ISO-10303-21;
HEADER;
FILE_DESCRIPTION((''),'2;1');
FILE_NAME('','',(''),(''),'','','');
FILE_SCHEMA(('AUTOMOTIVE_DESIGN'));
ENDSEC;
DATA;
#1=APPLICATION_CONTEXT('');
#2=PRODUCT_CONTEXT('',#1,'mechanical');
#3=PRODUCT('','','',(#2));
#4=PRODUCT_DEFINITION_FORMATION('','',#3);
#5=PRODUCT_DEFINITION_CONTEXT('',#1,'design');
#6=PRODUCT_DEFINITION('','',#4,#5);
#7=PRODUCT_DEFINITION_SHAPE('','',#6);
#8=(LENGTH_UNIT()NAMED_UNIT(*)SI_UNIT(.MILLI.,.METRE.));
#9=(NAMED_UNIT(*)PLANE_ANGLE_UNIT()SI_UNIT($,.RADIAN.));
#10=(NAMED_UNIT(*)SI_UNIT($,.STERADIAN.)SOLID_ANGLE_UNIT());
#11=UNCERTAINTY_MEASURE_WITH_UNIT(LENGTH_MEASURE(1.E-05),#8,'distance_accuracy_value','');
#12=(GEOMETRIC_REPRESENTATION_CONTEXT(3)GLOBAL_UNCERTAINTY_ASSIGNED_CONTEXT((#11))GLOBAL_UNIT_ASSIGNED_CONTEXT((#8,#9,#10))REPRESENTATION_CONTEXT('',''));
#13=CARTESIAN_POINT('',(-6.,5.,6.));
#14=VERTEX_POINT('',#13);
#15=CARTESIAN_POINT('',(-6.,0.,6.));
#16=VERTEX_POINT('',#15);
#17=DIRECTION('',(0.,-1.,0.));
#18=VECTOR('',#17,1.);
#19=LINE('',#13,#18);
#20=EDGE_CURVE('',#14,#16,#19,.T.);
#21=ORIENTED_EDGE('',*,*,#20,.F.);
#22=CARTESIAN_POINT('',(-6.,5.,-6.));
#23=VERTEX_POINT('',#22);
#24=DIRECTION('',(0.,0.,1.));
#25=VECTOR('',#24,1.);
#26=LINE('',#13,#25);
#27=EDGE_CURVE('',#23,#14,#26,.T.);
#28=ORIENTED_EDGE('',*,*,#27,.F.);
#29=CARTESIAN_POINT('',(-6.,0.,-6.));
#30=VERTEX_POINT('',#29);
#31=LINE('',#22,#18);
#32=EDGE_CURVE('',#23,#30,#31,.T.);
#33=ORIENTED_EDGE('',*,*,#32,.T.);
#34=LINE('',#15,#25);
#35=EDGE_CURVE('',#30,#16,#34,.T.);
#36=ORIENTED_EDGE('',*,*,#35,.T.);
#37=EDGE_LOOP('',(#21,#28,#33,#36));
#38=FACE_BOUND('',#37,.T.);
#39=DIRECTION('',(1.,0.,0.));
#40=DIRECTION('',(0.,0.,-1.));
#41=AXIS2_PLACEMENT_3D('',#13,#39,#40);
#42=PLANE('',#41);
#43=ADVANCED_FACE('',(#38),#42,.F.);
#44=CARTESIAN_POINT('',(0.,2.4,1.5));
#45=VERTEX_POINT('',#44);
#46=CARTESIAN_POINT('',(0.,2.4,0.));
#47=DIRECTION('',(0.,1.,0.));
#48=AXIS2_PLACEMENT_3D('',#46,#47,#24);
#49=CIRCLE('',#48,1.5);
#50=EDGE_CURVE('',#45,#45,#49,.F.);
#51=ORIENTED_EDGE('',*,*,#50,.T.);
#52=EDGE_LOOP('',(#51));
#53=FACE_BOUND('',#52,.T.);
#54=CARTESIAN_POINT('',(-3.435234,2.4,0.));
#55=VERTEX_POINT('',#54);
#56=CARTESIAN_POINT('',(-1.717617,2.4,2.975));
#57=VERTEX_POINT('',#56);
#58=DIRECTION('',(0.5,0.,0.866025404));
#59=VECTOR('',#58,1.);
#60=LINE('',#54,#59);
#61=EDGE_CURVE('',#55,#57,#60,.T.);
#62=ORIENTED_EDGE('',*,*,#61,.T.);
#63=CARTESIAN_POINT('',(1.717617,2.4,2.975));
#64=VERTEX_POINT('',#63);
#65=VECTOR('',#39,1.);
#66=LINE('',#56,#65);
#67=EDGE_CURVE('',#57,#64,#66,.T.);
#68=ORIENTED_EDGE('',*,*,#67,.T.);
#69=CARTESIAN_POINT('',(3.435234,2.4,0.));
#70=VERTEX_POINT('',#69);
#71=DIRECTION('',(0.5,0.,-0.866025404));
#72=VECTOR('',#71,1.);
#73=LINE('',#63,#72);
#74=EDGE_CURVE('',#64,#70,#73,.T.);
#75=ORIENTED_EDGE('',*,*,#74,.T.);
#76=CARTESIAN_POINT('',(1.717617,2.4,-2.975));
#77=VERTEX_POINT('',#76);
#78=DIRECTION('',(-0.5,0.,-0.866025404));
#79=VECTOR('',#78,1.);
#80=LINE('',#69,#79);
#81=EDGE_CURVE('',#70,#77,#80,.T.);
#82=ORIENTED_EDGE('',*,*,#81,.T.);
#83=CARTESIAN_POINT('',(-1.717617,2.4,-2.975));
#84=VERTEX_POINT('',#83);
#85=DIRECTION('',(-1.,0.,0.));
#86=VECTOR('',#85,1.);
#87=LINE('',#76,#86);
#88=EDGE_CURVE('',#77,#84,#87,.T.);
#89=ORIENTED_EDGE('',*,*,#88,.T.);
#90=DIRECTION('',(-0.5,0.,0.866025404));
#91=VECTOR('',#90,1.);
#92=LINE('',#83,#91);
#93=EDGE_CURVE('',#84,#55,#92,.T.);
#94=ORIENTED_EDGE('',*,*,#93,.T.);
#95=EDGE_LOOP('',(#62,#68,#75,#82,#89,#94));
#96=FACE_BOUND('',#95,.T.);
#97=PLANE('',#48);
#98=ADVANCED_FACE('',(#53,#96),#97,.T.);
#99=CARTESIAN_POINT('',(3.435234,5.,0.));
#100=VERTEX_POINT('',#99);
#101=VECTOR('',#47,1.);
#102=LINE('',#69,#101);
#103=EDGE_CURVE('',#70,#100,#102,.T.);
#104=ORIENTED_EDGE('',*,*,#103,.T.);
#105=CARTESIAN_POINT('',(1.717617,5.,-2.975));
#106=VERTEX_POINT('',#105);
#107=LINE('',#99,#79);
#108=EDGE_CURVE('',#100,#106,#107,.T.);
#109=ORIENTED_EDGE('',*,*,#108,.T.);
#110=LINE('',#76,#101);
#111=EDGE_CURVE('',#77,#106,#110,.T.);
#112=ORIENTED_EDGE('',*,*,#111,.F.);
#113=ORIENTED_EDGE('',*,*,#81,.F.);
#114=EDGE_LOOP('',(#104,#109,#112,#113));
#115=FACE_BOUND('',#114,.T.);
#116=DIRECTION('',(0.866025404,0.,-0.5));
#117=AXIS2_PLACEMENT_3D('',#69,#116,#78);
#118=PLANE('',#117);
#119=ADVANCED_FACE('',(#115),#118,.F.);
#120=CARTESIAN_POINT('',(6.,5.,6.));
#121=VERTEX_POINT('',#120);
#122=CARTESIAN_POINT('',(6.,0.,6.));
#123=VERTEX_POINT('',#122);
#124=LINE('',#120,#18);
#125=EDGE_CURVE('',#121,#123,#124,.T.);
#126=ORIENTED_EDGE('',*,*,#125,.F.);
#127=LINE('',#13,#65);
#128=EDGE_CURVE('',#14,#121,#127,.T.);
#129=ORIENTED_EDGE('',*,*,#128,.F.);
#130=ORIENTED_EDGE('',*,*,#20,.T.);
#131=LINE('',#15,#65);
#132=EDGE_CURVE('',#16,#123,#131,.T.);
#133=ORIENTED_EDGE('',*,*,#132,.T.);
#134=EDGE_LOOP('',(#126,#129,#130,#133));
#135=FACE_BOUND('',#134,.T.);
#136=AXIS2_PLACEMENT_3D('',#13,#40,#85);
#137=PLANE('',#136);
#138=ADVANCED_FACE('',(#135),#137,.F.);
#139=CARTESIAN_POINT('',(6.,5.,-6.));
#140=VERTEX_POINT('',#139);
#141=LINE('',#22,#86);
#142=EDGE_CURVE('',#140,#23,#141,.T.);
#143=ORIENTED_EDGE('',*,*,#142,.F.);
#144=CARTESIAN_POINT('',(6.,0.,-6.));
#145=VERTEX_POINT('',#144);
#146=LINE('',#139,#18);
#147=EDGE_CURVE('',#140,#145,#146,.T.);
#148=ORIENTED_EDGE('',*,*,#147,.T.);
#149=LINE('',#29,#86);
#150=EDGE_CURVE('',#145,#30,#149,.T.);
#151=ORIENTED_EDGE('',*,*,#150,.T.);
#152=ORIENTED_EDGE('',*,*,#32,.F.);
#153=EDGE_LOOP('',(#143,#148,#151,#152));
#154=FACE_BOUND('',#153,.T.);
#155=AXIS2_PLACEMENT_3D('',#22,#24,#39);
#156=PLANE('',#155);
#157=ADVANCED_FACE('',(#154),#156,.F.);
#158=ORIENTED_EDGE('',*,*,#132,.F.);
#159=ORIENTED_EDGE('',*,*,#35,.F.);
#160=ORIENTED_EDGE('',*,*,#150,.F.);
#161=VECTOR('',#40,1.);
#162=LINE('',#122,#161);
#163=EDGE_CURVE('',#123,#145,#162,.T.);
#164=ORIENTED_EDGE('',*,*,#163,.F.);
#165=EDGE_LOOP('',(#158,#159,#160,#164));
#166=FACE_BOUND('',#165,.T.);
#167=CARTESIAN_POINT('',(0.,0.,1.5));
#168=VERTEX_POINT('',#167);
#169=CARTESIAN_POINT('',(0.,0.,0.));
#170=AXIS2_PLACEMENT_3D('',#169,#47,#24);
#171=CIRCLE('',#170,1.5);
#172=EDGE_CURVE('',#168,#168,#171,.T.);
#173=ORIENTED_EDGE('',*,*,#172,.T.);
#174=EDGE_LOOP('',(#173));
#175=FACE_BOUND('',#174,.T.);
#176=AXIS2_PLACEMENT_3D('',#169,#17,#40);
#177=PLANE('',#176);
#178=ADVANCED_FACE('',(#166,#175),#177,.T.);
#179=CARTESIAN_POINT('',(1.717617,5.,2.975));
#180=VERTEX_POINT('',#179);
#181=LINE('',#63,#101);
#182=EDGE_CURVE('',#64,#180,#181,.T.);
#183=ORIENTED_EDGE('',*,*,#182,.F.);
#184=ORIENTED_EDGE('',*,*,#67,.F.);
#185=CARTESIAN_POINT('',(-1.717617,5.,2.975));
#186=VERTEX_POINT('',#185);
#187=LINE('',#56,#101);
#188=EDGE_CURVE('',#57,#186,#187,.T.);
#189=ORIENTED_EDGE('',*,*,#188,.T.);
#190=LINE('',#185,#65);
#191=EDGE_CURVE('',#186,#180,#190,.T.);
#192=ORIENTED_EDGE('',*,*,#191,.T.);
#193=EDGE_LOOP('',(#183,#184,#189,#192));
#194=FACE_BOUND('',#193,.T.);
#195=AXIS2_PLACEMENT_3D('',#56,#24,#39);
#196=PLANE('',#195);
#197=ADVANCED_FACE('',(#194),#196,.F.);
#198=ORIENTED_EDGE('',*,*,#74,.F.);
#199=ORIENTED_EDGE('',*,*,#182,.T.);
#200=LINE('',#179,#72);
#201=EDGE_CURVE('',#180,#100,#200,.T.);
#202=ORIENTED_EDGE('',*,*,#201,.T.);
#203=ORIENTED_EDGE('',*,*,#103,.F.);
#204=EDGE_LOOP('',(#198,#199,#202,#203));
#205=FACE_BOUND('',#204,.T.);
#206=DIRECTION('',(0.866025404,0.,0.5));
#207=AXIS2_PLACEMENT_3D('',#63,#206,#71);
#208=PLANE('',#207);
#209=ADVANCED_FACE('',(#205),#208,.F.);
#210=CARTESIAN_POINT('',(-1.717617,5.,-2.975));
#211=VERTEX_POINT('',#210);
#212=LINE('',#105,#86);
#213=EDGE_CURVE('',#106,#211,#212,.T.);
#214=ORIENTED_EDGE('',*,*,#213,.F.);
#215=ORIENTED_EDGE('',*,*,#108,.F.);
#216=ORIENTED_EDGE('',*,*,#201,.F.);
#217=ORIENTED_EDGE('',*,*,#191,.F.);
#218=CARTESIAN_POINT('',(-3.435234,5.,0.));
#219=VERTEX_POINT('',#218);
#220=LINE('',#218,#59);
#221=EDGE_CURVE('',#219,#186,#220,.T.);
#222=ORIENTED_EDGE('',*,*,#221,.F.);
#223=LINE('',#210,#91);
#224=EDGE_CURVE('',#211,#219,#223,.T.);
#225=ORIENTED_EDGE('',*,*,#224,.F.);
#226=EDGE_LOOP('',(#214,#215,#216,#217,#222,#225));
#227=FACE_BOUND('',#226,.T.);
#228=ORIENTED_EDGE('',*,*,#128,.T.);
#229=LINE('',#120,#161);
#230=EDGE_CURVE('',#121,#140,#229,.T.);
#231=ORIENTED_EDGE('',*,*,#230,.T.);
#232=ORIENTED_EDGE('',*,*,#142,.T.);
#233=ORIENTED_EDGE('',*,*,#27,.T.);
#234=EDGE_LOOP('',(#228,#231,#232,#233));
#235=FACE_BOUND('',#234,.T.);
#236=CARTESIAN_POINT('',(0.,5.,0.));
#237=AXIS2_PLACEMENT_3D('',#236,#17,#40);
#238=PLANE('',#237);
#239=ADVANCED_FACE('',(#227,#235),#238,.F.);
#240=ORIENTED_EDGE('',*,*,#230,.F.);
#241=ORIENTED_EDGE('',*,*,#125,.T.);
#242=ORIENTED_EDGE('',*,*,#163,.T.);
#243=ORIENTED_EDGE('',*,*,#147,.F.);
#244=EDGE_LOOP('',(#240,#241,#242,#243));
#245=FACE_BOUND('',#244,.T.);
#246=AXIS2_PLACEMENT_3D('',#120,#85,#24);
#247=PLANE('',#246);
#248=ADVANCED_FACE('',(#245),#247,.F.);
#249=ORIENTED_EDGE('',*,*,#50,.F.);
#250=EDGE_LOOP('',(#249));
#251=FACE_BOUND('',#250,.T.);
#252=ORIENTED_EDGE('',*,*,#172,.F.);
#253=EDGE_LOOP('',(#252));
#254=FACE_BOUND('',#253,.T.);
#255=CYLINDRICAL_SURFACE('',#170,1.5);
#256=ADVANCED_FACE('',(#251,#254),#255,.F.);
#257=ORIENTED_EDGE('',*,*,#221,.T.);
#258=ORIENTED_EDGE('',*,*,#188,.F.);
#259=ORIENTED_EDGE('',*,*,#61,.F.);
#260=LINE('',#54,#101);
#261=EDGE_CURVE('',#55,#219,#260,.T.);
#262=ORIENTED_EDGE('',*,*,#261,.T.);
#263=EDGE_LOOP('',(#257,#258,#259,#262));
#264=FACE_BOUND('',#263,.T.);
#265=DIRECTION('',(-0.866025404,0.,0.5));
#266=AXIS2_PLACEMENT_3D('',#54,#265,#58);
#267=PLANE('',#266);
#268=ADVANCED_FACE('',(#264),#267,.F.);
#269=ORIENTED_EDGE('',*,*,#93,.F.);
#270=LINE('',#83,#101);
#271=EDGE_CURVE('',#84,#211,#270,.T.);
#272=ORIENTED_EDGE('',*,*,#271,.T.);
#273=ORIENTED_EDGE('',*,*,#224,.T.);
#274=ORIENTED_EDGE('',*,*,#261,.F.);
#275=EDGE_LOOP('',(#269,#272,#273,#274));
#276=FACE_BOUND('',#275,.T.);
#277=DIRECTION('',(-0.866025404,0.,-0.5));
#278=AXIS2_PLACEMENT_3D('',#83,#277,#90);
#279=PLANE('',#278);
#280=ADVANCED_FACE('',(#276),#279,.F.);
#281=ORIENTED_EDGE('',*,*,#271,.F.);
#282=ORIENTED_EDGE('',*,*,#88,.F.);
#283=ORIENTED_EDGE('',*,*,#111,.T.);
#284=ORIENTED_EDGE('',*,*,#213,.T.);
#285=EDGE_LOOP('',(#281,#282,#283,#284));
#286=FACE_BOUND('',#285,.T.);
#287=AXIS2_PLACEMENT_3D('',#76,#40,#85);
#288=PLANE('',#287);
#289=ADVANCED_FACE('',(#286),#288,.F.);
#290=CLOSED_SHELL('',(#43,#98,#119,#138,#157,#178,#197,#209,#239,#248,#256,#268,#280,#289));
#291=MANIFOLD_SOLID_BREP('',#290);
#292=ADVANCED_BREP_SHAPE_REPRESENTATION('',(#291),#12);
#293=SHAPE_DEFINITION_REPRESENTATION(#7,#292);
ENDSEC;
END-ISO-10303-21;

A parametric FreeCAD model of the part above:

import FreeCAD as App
import Part
import Sketcher

V = App.Vector
Q = App.Units.Quantity

doc = App.newDocument("Part")
body = doc.addObject("PartDesign::Body", "Body")

# Sketch on XZ plane
sketch1 = body.newObject("Sketcher::SketchObject", "Sketch")
sketch1.AttachmentSupport = (doc.getObject("XZ_Plane"), [""])
sketch1.MapMode = "FlatFace"
sketch1.addGeometry([
    Part.LineSegment(V(-6, -6, 0), V(-6, 6, 0)),
    Part.LineSegment(V(-6, 6, 0), V(6, 6, 0)),
    Part.LineSegment(V(6, 6, 0), V(6, -6, 0)),
    Part.LineSegment(V(6, -6, 0), V(-6, -6, 0)),
], False)
sketch1.addConstraint([
    Sketcher.Constraint("Coincident", 0, 2, 1, 1),
    Sketcher.Constraint("Coincident", 1, 2, 2, 1),
    Sketcher.Constraint("Coincident", 2, 2, 3, 1),
    Sketcher.Constraint("Coincident", 3, 2, 0, 1),
    Sketcher.Constraint("Vertical", 0),
    Sketcher.Constraint("Horizontal", 1),
    Sketcher.Constraint("Vertical", 2),
    Sketcher.Constraint("Horizontal", 3),
    Sketcher.Constraint("Symmetric", 0, 2, 2, 2, -1, 1),
    Sketcher.Constraint("Equal", 3, 0),
    Sketcher.Constraint("DistanceX", 1, 1, 1, 2, 12.0),
])
pad1 = body.newObject("PartDesign::Pad", "Pad")
pad1.Profile = sketch1
pad1.Length = 5
pad1.Reversed = True

# Sketch on XZ plane
sketch2 = body.newObject("Sketcher::SketchObject", "Sketch001")
sketch2.AttachmentSupport = (doc.getObject("XZ_Plane"), [""])
sketch2.MapMode = "FlatFace"
sketch2.AttachmentOffset = App.Placement(V(0, 0, -5), App.Rotation())
sketch2.addGeometry(Part.Circle(V(0, 0, 0), V(0, 0, 1), 1.5), False)
sketch2.addConstraint([
    Sketcher.Constraint("Coincident", 0, 3, -1, 1),
    Sketcher.Constraint("Diameter", 0, 3.0),
])
pocket1 = body.newObject("PartDesign::Pocket", "Pocket")
pocket1.Profile = sketch2
pocket1.Length = 5
pocket1.Reversed = True

# Sketch on XZ plane
sketch3 = body.newObject("Sketcher::SketchObject", "Sketch002")
sketch3.AttachmentSupport = (doc.getObject("XZ_Plane"), [""])
sketch3.MapMode = "FlatFace"
sketch3.AttachmentOffset = App.Placement(V(0, 0, -5), App.Rotation())
sketch3.addGeometry([
    Part.LineSegment(V(3.435234, 0, 0), V(1.717617, -2.975, 0)),  # 0
    Part.LineSegment(V(1.717617, -2.975, 0), V(-1.717617, -2.975, 0)),  # 1
    Part.LineSegment(V(-1.717617, -2.975, 0), V(-3.435234, 0, 0)),  # 2
    Part.LineSegment(V(-3.435234, 0, 0), V(-1.717617, 2.975, 0)),  # 3
    Part.LineSegment(V(-1.717617, 2.975, 0), V(1.717617, 2.975, 0)),  # 4
    Part.LineSegment(V(1.717617, 2.975, 0), V(3.435234, 0, 0)),  # 5
], False)
sketch3.addConstraint([
    Sketcher.Constraint("Coincident", 0, 2, 1, 1),
    Sketcher.Constraint("Coincident", 1, 2, 2, 1),
    Sketcher.Constraint("Coincident", 2, 2, 3, 1),
    Sketcher.Constraint("Coincident", 3, 2, 4, 1),
    Sketcher.Constraint("Coincident", 4, 2, 5, 1),
    Sketcher.Constraint("Coincident", 5, 2, 0, 1),
    Sketcher.Constraint("Horizontal", 1),
    Sketcher.Constraint("Horizontal", 4),
    Sketcher.Constraint("Symmetric", 0, 2, 3, 2, -1, 1),
    Sketcher.Constraint("Symmetric", 2, 2, 5, 2, -1, 1),
    Sketcher.Constraint("PointOnObject", 2, 2, -1),
    Sketcher.Constraint("Parallel", 2, 5),
    Sketcher.Constraint("Vertical", 1, 2, 3, 2),
    Sketcher.Constraint("Angle", 0, Q("-120 deg")),
    Sketcher.Constraint("DistanceY", 1, 2, 3, 2, 5.95),
    Sketcher.Constraint("DistanceX", 1, 2, 1, 1, 3.435234),
])
pocket2 = body.newObject("PartDesign::Pocket", "Pocket001")
pocket2.Profile = sketch3
pocket2.Length = 2.6
pocket2.Reversed = True

doc.recompute()
